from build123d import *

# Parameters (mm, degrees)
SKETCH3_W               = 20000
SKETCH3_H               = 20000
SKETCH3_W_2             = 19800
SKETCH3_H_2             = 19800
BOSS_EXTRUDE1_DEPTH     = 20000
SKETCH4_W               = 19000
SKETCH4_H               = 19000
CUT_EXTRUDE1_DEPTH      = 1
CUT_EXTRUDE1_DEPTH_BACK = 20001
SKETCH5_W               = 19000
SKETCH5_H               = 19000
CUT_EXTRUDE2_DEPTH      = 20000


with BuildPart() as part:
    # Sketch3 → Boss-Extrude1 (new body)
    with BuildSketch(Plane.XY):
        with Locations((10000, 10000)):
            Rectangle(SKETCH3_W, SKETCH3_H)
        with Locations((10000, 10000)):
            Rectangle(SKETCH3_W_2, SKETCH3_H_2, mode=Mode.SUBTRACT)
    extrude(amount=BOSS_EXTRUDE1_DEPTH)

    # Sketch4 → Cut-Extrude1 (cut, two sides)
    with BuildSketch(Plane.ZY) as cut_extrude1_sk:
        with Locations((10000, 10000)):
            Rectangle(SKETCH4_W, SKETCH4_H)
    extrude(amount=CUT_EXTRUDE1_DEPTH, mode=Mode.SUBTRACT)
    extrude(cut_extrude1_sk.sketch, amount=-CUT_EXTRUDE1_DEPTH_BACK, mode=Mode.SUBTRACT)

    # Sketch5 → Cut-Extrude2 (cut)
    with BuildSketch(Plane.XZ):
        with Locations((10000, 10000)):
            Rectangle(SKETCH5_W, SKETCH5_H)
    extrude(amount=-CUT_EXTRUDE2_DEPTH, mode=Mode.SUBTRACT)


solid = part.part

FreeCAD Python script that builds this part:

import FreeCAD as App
import Part
import Sketcher

doc = App.newDocument("Part")
body = doc.addObject("PartDesign::Body", "Body")

# Sketch on XY plane
sketch1 = body.newObject("Sketcher::SketchObject", "Sketch")
sketch1.AttachmentSupport = (doc.getObject("XY_Plane"), [""])
sketch1.MapMode = "FlatFace"
sketch1.addGeometry([
    Part.LineSegment(App.Vector(0, 20000, 0), App.Vector(0, 0, 0)),  # 0
    Part.LineSegment(App.Vector(0, 0, 0), App.Vector(20000, 0, 0)),  # 1
    Part.LineSegment(App.Vector(20000, 0, 0), App.Vector(20000, 20000, 0)),  # 2
    Part.LineSegment(App.Vector(20000, 20000, 0), App.Vector(0, 20000, 0)),  # 3
    Part.LineSegment(App.Vector(19900, 100, 0), App.Vector(100, 100, 0)),  # 4
    Part.LineSegment(App.Vector(100, 100, 0), App.Vector(100, 19900, 0)),  # 5
    Part.LineSegment(App.Vector(100, 19900, 0), App.Vector(19900, 19900, 0)),  # 6
    Part.LineSegment(App.Vector(19900, 19900, 0), App.Vector(19900, 100, 0)),  # 7
], False)
sketch1.addConstraint([
    Sketcher.Constraint("Coincident", 0, 2, 1, 1),
    Sketcher.Constraint("Coincident", 1, 2, 2, 1),
    Sketcher.Constraint("Coincident", 2, 2, 3, 1),
    Sketcher.Constraint("Coincident", 3, 2, 0, 1),
    Sketcher.Constraint("Coincident", 4, 2, 5, 1),
    Sketcher.Constraint("Coincident", 5, 2, 6, 1),
    Sketcher.Constraint("Coincident", 6, 2, 7, 1),
    Sketcher.Constraint("Coincident", 7, 2, 4, 1),
    Sketcher.Constraint("Vertical", 0),
    Sketcher.Constraint("Horizontal", 1),
    Sketcher.Constraint("Vertical", 2),
    Sketcher.Constraint("Horizontal", 3),
    Sketcher.Constraint("Horizontal", 4),
    Sketcher.Constraint("Vertical", 5),
    Sketcher.Constraint("Horizontal", 6),
    Sketcher.Constraint("Vertical", 7),
    Sketcher.Constraint("Coincident", 0, 2, -1, 1),
    Sketcher.Constraint("Equal", 3, 0),
    Sketcher.Constraint("Equal", 6, 5),
    Sketcher.Constraint("DistanceX", 1, 1, 1, 2, 20000.0),
    Sketcher.Constraint("DistanceX", 4, 2, 4, 1, 19800.0),
    Sketcher.Constraint("DistanceX", -1, 1, 4, 2, 100.0),
    Sketcher.Constraint("DistanceY", -1, 1, 4, 2, 100.0),
])
pad1 = body.newObject("PartDesign::Pad", "Pad")
pad1.Profile = sketch1
pad1.Length = 20000

# Sketch on YZ plane
sketch2 = body.newObject("Sketcher::SketchObject", "Sketch001")
sketch2.AttachmentSupport = (doc.getObject("YZ_Plane"), [""])
sketch2.MapMode = "FlatFace"
sketch2.addGeometry([
    Part.LineSegment(App.Vector(19500, 500, 0), App.Vector(500, 500, 0)),
    Part.LineSegment(App.Vector(500, 500, 0), App.Vector(500, 19500, 0)),
    Part.LineSegment(App.Vector(500, 19500, 0), App.Vector(19500, 19500, 0)),
    Part.LineSegment(App.Vector(19500, 19500, 0), App.Vector(19500, 500, 0)),
], False)
sketch2.addConstraint([
    Sketcher.Constraint("Coincident", 0, 2, 1, 1),
    Sketcher.Constraint("Coincident", 1, 2, 2, 1),
    Sketcher.Constraint("Coincident", 2, 2, 3, 1),
    Sketcher.Constraint("Coincident", 3, 2, 0, 1),
    Sketcher.Constraint("Horizontal", 0),
    Sketcher.Constraint("Vertical", 1),
    Sketcher.Constraint("Horizontal", 2),
    Sketcher.Constraint("Vertical", 3),
    Sketcher.Constraint("Equal", 2, 1),
    Sketcher.Constraint("DistanceX", 0, 2, 0, 1, 19000.0),
    Sketcher.Constraint("DistanceX", -1, 1, 0, 2, 500.0),
    Sketcher.Constraint("DistanceY", -1, 1, 0, 2, 500.0),
])
pocket1 = body.newObject("PartDesign::Pocket", "Pocket")
pocket1.Profile = sketch2
pocket1.Type = "ThroughAll"
pocket1.Midplane = True

# Sketch on XZ plane
sketch3 = body.newObject("Sketcher::SketchObject", "Sketch002")
sketch3.AttachmentSupport = (doc.getObject("XZ_Plane"), [""])
sketch3.MapMode = "FlatFace"
sketch3.addGeometry([
    Part.LineSegment(App.Vector(500, 19500, 0), App.Vector(500, 500, 0)),
    Part.LineSegment(App.Vector(500, 500, 0), App.Vector(19500, 500, 0)),
    Part.LineSegment(App.Vector(19500, 500, 0), App.Vector(19500, 19500, 0)),
    Part.LineSegment(App.Vector(19500, 19500, 0), App.Vector(500, 19500, 0)),
], False)
sketch3.addConstraint([
    Sketcher.Constraint("Coincident", 0, 2, 1, 1),
    Sketcher.Constraint("Coincident", 1, 2, 2, 1),
    Sketcher.Constraint("Coincident", 2, 2, 3, 1),
    Sketcher.Constraint("Coincident", 3, 2, 0, 1),
    Sketcher.Constraint("Vertical", 0),
    Sketcher.Constraint("Horizontal", 1),
    Sketcher.Constraint("Vertical", 2),
    Sketcher.Constraint("Horizontal", 3),
    Sketcher.Constraint("Equal", 3, 0),
    Sketcher.Constraint("DistanceX", 1, 1, 1, 2, 19000.0),
    Sketcher.Constraint("DistanceX", -1, 1, 0, 2, 500.0),
    Sketcher.Constraint("DistanceY", -1, 1, 0, 2, 500.0),
])
pocket2 = body.newObject("PartDesign::Pocket", "Pocket001")
pocket2.Profile = sketch3
pocket2.Length = 20000

doc.recompute()
